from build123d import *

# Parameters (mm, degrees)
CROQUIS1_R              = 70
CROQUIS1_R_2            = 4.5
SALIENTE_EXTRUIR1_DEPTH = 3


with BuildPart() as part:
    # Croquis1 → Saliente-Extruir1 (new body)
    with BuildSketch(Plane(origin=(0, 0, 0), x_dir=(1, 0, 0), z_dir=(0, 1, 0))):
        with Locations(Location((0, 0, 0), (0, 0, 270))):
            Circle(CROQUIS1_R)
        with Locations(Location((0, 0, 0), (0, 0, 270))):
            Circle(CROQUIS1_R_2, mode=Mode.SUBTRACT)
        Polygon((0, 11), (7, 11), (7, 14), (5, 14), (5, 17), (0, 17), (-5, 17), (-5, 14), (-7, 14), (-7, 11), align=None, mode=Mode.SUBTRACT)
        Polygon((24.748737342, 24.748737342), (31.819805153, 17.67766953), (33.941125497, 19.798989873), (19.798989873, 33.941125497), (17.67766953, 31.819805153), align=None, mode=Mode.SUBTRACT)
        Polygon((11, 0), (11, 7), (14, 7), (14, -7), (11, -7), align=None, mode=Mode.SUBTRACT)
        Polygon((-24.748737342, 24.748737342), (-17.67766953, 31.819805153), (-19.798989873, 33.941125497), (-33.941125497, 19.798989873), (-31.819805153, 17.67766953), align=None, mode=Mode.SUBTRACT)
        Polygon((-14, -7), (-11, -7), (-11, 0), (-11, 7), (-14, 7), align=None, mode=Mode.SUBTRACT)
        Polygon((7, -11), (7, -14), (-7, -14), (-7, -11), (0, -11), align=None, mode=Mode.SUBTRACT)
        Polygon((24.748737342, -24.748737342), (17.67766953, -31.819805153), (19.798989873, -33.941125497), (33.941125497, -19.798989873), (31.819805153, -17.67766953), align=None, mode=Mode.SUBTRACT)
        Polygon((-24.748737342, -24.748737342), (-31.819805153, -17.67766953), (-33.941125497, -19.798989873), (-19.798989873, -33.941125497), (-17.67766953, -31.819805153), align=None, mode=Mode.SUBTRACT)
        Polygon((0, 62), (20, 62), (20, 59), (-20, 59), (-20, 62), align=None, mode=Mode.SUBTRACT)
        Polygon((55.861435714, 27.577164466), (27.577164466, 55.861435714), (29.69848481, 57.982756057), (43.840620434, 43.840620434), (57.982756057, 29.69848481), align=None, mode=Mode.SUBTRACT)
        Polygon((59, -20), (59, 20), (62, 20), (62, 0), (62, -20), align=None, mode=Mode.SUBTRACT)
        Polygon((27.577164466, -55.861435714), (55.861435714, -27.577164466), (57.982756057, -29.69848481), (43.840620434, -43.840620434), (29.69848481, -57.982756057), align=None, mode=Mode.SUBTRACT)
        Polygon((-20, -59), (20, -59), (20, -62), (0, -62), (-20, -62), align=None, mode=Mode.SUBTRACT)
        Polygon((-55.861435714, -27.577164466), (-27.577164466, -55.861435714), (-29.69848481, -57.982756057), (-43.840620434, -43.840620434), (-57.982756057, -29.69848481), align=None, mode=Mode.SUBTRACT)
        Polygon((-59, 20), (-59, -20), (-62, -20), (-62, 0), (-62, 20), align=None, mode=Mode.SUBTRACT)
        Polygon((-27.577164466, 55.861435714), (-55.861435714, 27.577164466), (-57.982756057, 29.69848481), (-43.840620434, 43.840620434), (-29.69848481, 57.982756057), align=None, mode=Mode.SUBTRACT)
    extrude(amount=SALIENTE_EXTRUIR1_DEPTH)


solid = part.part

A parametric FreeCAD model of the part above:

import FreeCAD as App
import Part
import Sketcher
from FreeCAD import Vector

doc = App.newDocument("Part")
body = doc.addObject("PartDesign::Body", "Body")

sketch1 = body.newObject("Sketcher::SketchObject", "Sketch")
sketch1.AttachmentSupport = (doc.getObject("XZ_Plane"), [""])
sketch1.MapMode = "FlatFace"
sketch1.addGeometry([
    Part.Circle(Vector(0, 0, 0), Vector(0, 0, 1), 70),
    Part.LineSegment(Vector(-29.7, -58, 0), Vector(-27.6, -55.9, 0)),
    Part.LineSegment(Vector(-27.6, -55.9, 0), Vector(-55.9, -27.6, 0)),
    Part.LineSegment(Vector(-55.9, -27.6, 0), Vector(-58, -29.7, 0)),
    Part.LineSegment(Vector(-58, -29.7, 0), Vector(-43.8, -43.8, 0)),
    Part.LineSegment(Vector(-43.8, -43.8, 0), Vector(-29.7, -58, 0)),
    Part.LineSegment(Vector(-17.7, -31.8, 0), Vector(-24.7, -24.7, 0)),
    Part.LineSegment(Vector(-24.7, -24.7, 0), Vector(-31.8, -17.7, 0)),
    Part.LineSegment(Vector(-31.8, -17.7, 0), Vector(-33.9, -19.8, 0)),
    Part.LineSegment(Vector(-33.9, -19.8, 0), Vector(-19.8, -33.9, 0)),
    Part.LineSegment(Vector(-19.8, -33.9, 0), Vector(-17.7, -31.8, 0)),
    Part.LineSegment(Vector(-62, -20, 0), Vector(-59, -20, 0)),
    Part.LineSegment(Vector(-59, -20, 0), Vector(-59, 20, 0)),
    Part.LineSegment(Vector(-59, 20, 0), Vector(-62, 20, 0)),
    Part.LineSegment(Vector(-62, 20, 0), Vector(-62, -20, 0)),
    Part.LineSegment(Vector(-58, 29.7, 0), Vector(-55.9, 27.6, 0)),
    Part.LineSegment(Vector(-55.9, 27.6, 0), Vector(-27.6, 55.9, 0)),
    Part.LineSegment(Vector(-27.6, 55.9, 0), Vector(-29.7, 58, 0)),
    Part.LineSegment(Vector(-29.7, 58, 0), Vector(-43.8, 43.8, 0)),
    Part.LineSegment(Vector(-43.8, 43.8, 0), Vector(-58, 29.7, 0)),
    Part.LineSegment(Vector(-31.8, 17.7, 0), Vector(-24.7, 24.7, 0)),
    Part.LineSegment(Vector(-24.7, 24.7, 0), Vector(-17.7, 31.8, 0)),
    Part.LineSegment(Vector(-17.7, 31.8, 0), Vector(-19.8, 33.9, 0)),
    Part.LineSegment(Vector(-19.8, 33.9, 0), Vector(-33.9, 19.8, 0)),
    Part.LineSegment(Vector(-33.9, 19.8, 0), Vector(-31.8, 17.7, 0)),
    Part.LineSegment(Vector(-11, 7, 0), Vector(-14, 7, 0)),
    Part.LineSegment(Vector(-14, 7, 0), Vector(-14, -7, 0)),
    Part.LineSegment(Vector(-14, -7, 0), Vector(-11, -7, 0)),
    Part.LineSegment(Vector(-11, -7, 0), Vector(-11, 7, 0)),
    Part.LineSegment(Vector(-20, -62, 0), Vector(20, -62, 0)),
    Part.LineSegment(Vector(20, -62, 0), Vector(20, -59, 0)),
    Part.LineSegment(Vector(20, -59, 0), Vector(-20, -59, 0)),
    Part.LineSegment(Vector(-20, -59, 0), Vector(-20, -62, 0)),
    Part.LineSegment(Vector(7, -11, 0), Vector(-7, -11, 0)),
    Part.LineSegment(Vector(-7, -11, 0), Vector(-7, -14, 0)),
    Part.LineSegment(Vector(-7, -14, 0), Vector(-5, -14, 0)),
    Part.LineSegment(Vector(-5, -14, 0), Vector(-5, -17, 0)),
    Part.LineSegment(Vector(-5, -17, 0), Vector(5, -17, 0)),
    Part.LineSegment(Vector(5, -17, 0), Vector(5, -14, 0)),
    Part.LineSegment(Vector(5, -14, 0), Vector(7, -14, 0)),
    Part.LineSegment(Vector(7, -14, 0), Vector(7, -11, 0)),
    Part.LineSegment(Vector(31.8, -17.7, 0), Vector(24.7, -24.7, 0)),
    Part.LineSegment(Vector(24.7, -24.7, 0), Vector(17.7, -31.8, 0)),
    Part.LineSegment(Vector(17.7, -31.8, 0), Vector(19.8, -33.9, 0)),
    Part.LineSegment(Vector(19.8, -33.9, 0), Vector(33.9, -19.8, 0)),
    Part.LineSegment(Vector(33.9, -19.8, 0), Vector(31.8, -17.7, 0)),
    Part.LineSegment(Vector(58, -29.7, 0), Vector(55.9, -27.6, 0)),
    Part.LineSegment(Vector(55.9, -27.6, 0), Vector(27.6, -55.9, 0)),
    Part.LineSegment(Vector(27.6, -55.9, 0), Vector(29.7, -58, 0)),
    Part.LineSegment(Vector(29.7, -58, 0), Vector(43.8, -43.8, 0)),
    Part.LineSegment(Vector(43.8, -43.8, 0), Vector(58, -29.7, 0)),
    Part.Circle(Vector(0, 0, 0), Vector(0, 0, 1), 4.5),
    Part.LineSegment(Vector(-7, 11, 0), Vector(7, 11, 0)),
    Part.LineSegment(Vector(7, 11, 0), Vector(7, 14, 0)),
    Part.LineSegment(Vector(7, 14, 0), Vector(-7, 14, 0)),
    Part.LineSegment(Vector(-7, 14, 0), Vector(-7, 11, 0)),
    Part.LineSegment(Vector(11, 7, 0), Vector(11, -7, 0)),
    Part.LineSegment(Vector(11, -7, 0), Vector(14, -7, 0)),
    Part.LineSegment(Vector(14, -7, 0), Vector(14, 7, 0)),
    Part.LineSegment(Vector(14, 7, 0), Vector(11, 7, 0)),
    Part.LineSegment(Vector(17.7, 31.8, 0), Vector(24.7, 24.7, 0)),
    Part.LineSegment(Vector(24.7, 24.7, 0), Vector(31.8, 17.7, 0)),
    Part.LineSegment(Vector(31.8, 17.7, 0), Vector(33.9, 19.8, 0)),
    Part.LineSegment(Vector(33.9, 19.8, 0), Vector(19.8, 33.9, 0)),
    Part.LineSegment(Vector(19.8, 33.9, 0), Vector(17.7, 31.8, 0)),
    Part.LineSegment(Vector(-20, 62, 0), Vector(-20, 59, 0)),
    Part.LineSegment(Vector(-20, 59, 0), Vector(20, 59, 0)),
    Part.LineSegment(Vector(20, 59, 0), Vector(20, 62, 0)),
    Part.LineSegment(Vector(20, 62, 0), Vector(-20, 62, 0)),
    Part.LineSegment(Vector(62, 20, 0), Vector(59, 20, 0)),
    Part.LineSegment(Vector(59, 20, 0), Vector(59, -20, 0)),
    Part.LineSegment(Vector(59, -20, 0), Vector(62, -20, 0)),
    Part.LineSegment(Vector(62, -20, 0), Vector(62, 20, 0)),
    Part.LineSegment(Vector(29.7, 58, 0), Vector(27.6, 55.9, 0)),
    Part.LineSegment(Vector(27.6, 55.9, 0), Vector(55.9, 27.6, 0)),
    Part.LineSegment(Vector(55.9, 27.6, 0), Vector(58, 29.7, 0)),
    Part.LineSegment(Vector(58, 29.7, 0), Vector(43.8, 43.8, 0)),
    Part.LineSegment(Vector(43.8, 43.8, 0), Vector(29.7, 58, 0)),
], False)
sketch1.addConstraint([
    Sketcher.Constraint("Coincident", 1, 2, 2, 1),
    Sketcher.Constraint("Coincident", 2, 2, 3, 1),
    Sketcher.Constraint("Coincident", 3, 2, 4, 1),
    Sketcher.Constraint("Coincident", 4, 2, 5, 1),
    Sketcher.Constraint("Coincident", 5, 2, 1, 1),
    Sketcher.Constraint("Coincident", 6, 2, 7, 1),
    Sketcher.Constraint("Coincident", 7, 2, 8, 1),
    Sketcher.Constraint("Coincident", 8, 2, 9, 1),
    Sketcher.Constraint("Coincident", 9, 2, 10, 1),
    Sketcher.Constraint("Coincident", 10, 2, 6, 1),
    Sketcher.Constraint("Coincident", 11, 2, 12, 1),
    Sketcher.Constraint("Coincident", 12, 2, 13, 1),
    Sketcher.Constraint("Coincident", 13, 2, 14, 1),
    Sketcher.Constraint("Coincident", 14, 2, 11, 1),
    Sketcher.Constraint("Coincident", 15, 2, 16, 1),
    Sketcher.Constraint("Coincident", 16, 2, 17, 1),
    Sketcher.Constraint("Coincident", 17, 2, 18, 1),
    Sketcher.Constraint("Coincident", 18, 2, 19, 1),
    Sketcher.Constraint("Coincident", 19, 2, 15, 1),
    Sketcher.Constraint("Coincident", 20, 2, 21, 1),
    Sketcher.Constraint("Coincident", 21, 2, 22, 1),
    Sketcher.Constraint("Coincident", 22, 2, 23, 1),
    Sketcher.Constraint("Coincident", 23, 2, 24, 1),
    Sketcher.Constraint("Coincident", 24, 2, 20, 1),
    Sketcher.Constraint("Coincident", 25, 2, 26, 1),
    Sketcher.Constraint("Coincident", 26, 2, 27, 1),
    Sketcher.Constraint("Coincident", 27, 2, 28, 1),
    Sketcher.Constraint("Coincident", 28, 2, 25, 1),
    Sketcher.Constraint("Coincident", 29, 2, 30, 1),
    Sketcher.Constraint("Coincident", 30, 2, 31, 1),
    Sketcher.Constraint("Coincident", 31, 2, 32, 1),
    Sketcher.Constraint("Coincident", 32, 2, 29, 1),
    Sketcher.Constraint("Coincident", 33, 2, 34, 1),
    Sketcher.Constraint("Coincident", 34, 2, 35, 1),
    Sketcher.Constraint("Coincident", 35, 2, 36, 1),
    Sketcher.Constraint("Coincident", 36, 2, 37, 1),
    Sketcher.Constraint("Coincident", 37, 2, 38, 1),
    Sketcher.Constraint("Coincident", 38, 2, 39, 1),
    Sketcher.Constraint("Coincident", 39, 2, 40, 1),
    Sketcher.Constraint("Coincident", 40, 2, 33, 1),
    Sketcher.Constraint("Coincident", 41, 2, 42, 1),
    Sketcher.Constraint("Coincident", 42, 2, 43, 1),
    Sketcher.Constraint("Coincident", 43, 2, 44, 1),
    Sketcher.Constraint("Coincident", 44, 2, 45, 1),
    Sketcher.Constraint("Coincident", 45, 2, 41, 1),
    Sketcher.Constraint("Coincident", 46, 2, 47, 1),
    Sketcher.Constraint("Coincident", 47, 2, 48, 1),
    Sketcher.Constraint("Coincident", 48, 2, 49, 1),
    Sketcher.Constraint("Coincident", 49, 2, 50, 1),
    Sketcher.Constraint("Coincident", 50, 2, 46, 1),
    Sketcher.Constraint("Coincident", 52, 2, 53, 1),
    Sketcher.Constraint("Coincident", 53, 2, 54, 1),
    Sketcher.Constraint("Coincident", 54, 2, 55, 1),
    Sketcher.Constraint("Coincident", 55, 2, 52, 1),
    Sketcher.Constraint("Coincident", 56, 2, 57, 1),
    Sketcher.Constraint("Coincident", 57, 2, 58, 1),
    Sketcher.Constraint("Coincident", 58, 2, 59, 1),
    Sketcher.Constraint("Coincident", 59, 2, 56, 1),
    Sketcher.Constraint("Coincident", 60, 2, 61, 1),
    Sketcher.Constraint("Coincident", 61, 2, 62, 1),
    Sketcher.Constraint("Coincident", 62, 2, 63, 1),
    Sketcher.Constraint("Coincident", 63, 2, 64, 1),
    Sketcher.Constraint("Coincident", 64, 2, 60, 1),
    Sketcher.Constraint("Coincident", 65, 2, 66, 1),
    Sketcher.Constraint("Coincident", 66, 2, 67, 1),
    Sketcher.Constraint("Coincident", 67, 2, 68, 1),
    Sketcher.Constraint("Coincident", 68, 2, 65, 1),
    Sketcher.Constraint("Coincident", 69, 2, 70, 1),
    Sketcher.Constraint("Coincident", 70, 2, 71, 1),
    Sketcher.Constraint("Coincident", 71, 2, 72, 1),
    Sketcher.Constraint("Coincident", 72, 2, 69, 1),
    Sketcher.Constraint("Coincident", 73, 2, 74, 1),
    Sketcher.Constraint("Coincident", 74, 2, 75, 1),
    Sketcher.Constraint("Coincident", 75, 2, 76, 1),
    Sketcher.Constraint("Coincident", 76, 2, 77, 1),
    Sketcher.Constraint("Coincident", 77, 2, 73, 1),
    Sketcher.Constraint("Horizontal", 11),
    Sketcher.Constraint("Vertical", 12),
    Sketcher.Constraint("Horizontal", 13),
    Sketcher.Constraint("Vertical", 14),
    Sketcher.Constraint("Horizontal", 25),
    Sketcher.Constraint("Vertical", 26),
    Sketcher.Constraint("Horizontal", 27),
    Sketcher.Constraint("Vertical", 28),
    Sketcher.Constraint("Horizontal", 29),
    Sketcher.Constraint("Vertical", 30),
    Sketcher.Constraint("Horizontal", 31),
    Sketcher.Constraint("Vertical", 32),
    Sketcher.Constraint("Horizontal", 33),
    Sketcher.Constraint("Vertical", 34),
    Sketcher.Constraint("Horizontal", 35),
    Sketcher.Constraint("Vertical", 36),
    Sketcher.Constraint("Horizontal", 37),
    Sketcher.Constraint("Vertical", 38),
    Sketcher.Constraint("Horizontal", 39),
    Sketcher.Constraint("Vertical", 40),
    Sketcher.Constraint("Horizontal", 52),
    Sketcher.Constraint("Vertical", 53),
    Sketcher.Constraint("Horizontal", 54),
    Sketcher.Constraint("Vertical", 55),
    Sketcher.Constraint("Vertical", 56),
    Sketcher.Constraint("Horizontal", 57),
    Sketcher.Constraint("Vertical", 58),
    Sketcher.Constraint("Horizontal", 59),
    Sketcher.Constraint("Vertical", 65),
    Sketcher.Constraint("Horizontal", 66),
    Sketcher.Constraint("Vertical", 67),
    Sketcher.Constraint("Horizontal", 68),
    Sketcher.Constraint("Horizontal", 69),
    Sketcher.Constraint("Vertical", 70),
    Sketcher.Constraint("Horizontal", 71),
    Sketcher.Constraint("Vertical", 72),
    Sketcher.Constraint("Coincident", 0, 3, -1, 1),
    Sketcher.Constraint("Coincident", 51, 3, -1, 1),
    Sketcher.Constraint("Symmetric", 20, 2, 41, 2, -1, 1),
    Sketcher.Constraint("Symmetric", 21, 2, 42, 2, -1, 1),
    Sketcher.Constraint("Symmetric", 22, 2, 43, 2, -1, 1),
    Sketcher.Constraint("Symmetric", 23, 2, 44, 2, -1, 1),
    Sketcher.Constraint("Symmetric", 24, 2, 45, 2, -1, 1),
    Sketcher.Constraint("Symmetric", 15, 2, 46, 2, -1, 1),
    Sketcher.Constraint("Symmetric", 16, 2, 47, 2, -1, 1),
    Sketcher.Constraint("Symmetric", 17, 2, 48, 2, -1, 1),
    Sketcher.Constraint("Symmetric", 18, 2, 49, 2, -1, 1),
    Sketcher.Constraint("Symmetric", 19, 2, 50, 2, -1, 1),
    Sketcher.Constraint("Symmetric", 33, 2, 52, 2, -1, 1),
    Sketcher.Constraint("Symmetric", 39, 2, 54, 2, -1, 1),
    Sketcher.Constraint("Symmetric", 28, 2, 56, 2, -1, 1),
    Sketcher.Constraint("Symmetric", 26, 2, 58, 2, -1, 1),
    Sketcher.Constraint("Symmetric", 6, 2, 60, 2, -1, 1),
    Sketcher.Constraint("Symmetric", 7, 2, 61, 2, -1, 1),
    Sketcher.Constraint("Symmetric", 8, 2, 62, 2, -1, 1),
    Sketcher.Constraint("Symmetric", 9, 2, 63, 2, -1, 1),
    Sketcher.Constraint("Symmetric", 10, 2, 64, 2, -1, 1),
    Sketcher.Constraint("Symmetric", 30, 2, 65, 2, -1, 1),
    Sketcher.Constraint("Symmetric", 32, 2, 67, 2, -1, 1),
    Sketcher.Constraint("Symmetric", 11, 2, 69, 2, -1, 1),
    Sketcher.Constraint("Symmetric", 13, 2, 71, 2, -1, 1),
    Sketcher.Constraint("Symmetric", 1, 2, 73, 2, -1, 1),
    Sketcher.Constraint("Symmetric", 2, 2, 74, 2, -1, 1),
    Sketcher.Constraint("Symmetric", 3, 2, 75, 2, -1, 1),
    Sketcher.Constraint("Symmetric", 4, 2, 76, 2, -1, 1),
    Sketcher.Constraint("Symmetric", 5, 2, 77, 2, -1, 1),
    Sketcher.Constraint("Symmetric", 35, 2, 38, 2, -2),
    Sketcher.Constraint("Symmetric", 6, 2, 41, 2, -2),
    Sketcher.Constraint("Symmetric", 10, 2, 42, 2, -2),
    Sketcher.Constraint("Symmetric", 9, 2, 43, 2, -2),
    Sketcher.Constraint("Symmetric", 8, 2, 44, 2, -2),
    Sketcher.Constraint("Symmetric", 7, 2, 45, 2, -2),
    Sketcher.Constraint("Symmetric", 2, 2, 46, 2, -2),
    Sketcher.Constraint("Symmetric", 1, 2, 47, 2, -2),
    Sketcher.Constraint("Symmetric", 5, 2, 48, 2, -2),
    Sketcher.Constraint("Symmetric", 4, 2, 49, 2, -2),
    Sketcher.Constraint("Symmetric", 3, 2, 50, 2, -2),
    Sketcher.Constraint("Perpendicular", 1, 2),
    Sketcher.Constraint("Perpendicular", 2, 3),
    Sketcher.Constraint("Perpendicular", 3, 4),
    Sketcher.Constraint("Parallel", 4, 5),
    Sketcher.Constraint("Parallel", 5, 6),
    Sketcher.Constraint("Parallel", 6, 7),
    Sketcher.Constraint("Perpendicular", 7, 8),
    Sketcher.Constraint("Perpendicular", 8, 9),
    Sketcher.Constraint("Perpendicular", 9, 10),
    Sketcher.Constraint("Perpendicular", 10, 15),
    Sketcher.Constraint("Horizontal", 27, 2, 56, 2),
    Sketcher.Constraint("Horizontal", 13, 2, 69, 2),
    Sketcher.Constraint("Vertical", 40, 2, 52, 2),
    Sketcher.Constraint("Vertical", 32, 2, 65, 2),
    Sketcher.Constraint("Equal", 13, 25),
    Sketcher.Constraint("Equal", 68, 12),
    Sketcher.Constraint("Equal", 54, 26),
    Sketcher.Constraint("Equal", 71, 30),
    Sketcher.Constraint("Equal", 32, 34),
    Sketcher.Constraint("Equal", 34, 36),
    Sketcher.Constraint("Equal", 4, 5),
    Sketcher.Constraint("Equal", 6, 7),
    Sketcher.Constraint("Equal", 3, 8),
    Sketcher.Constraint("Equal", 5, 9),
    Sketcher.Constraint("Diameter", 0, 140.0),
    Sketcher.Constraint("Diameter", 51, 9.0),
    Sketcher.Constraint("DistanceX", 11, 1, 11, 2, 3.0),
    Sketcher.Constraint("DistanceX", 29, 1, 29, 2, 40.0),
    Sketcher.Constraint("DistanceX", 33, 2, 33, 1, 14.0),
    Sketcher.Constraint("DistanceX", 35, 1, 35, 2, 2.0),
    Sketcher.Constraint("Distance", 1, 3.0),
    Sketcher.Constraint("Distance", 2, 40.0),
    Sketcher.Constraint("DistanceX", 11, 2, -1, 1, 59.0),
    Sketcher.Constraint("DistanceX", 25, 2, -1, 1, 14.0),
    Sketcher.Constraint("DistanceY", 29, 2, -1, 1, 62.0),
    Sketcher.Constraint("DistanceY", 33, 2, -1, 1, 11.0),
    Sketcher.Constraint("DistanceX", 4, 2, -1, 1, 43.84062),
    Sketcher.Constraint("DistanceY", 4, 2, -1, 1, 43.84062),
    Sketcher.Constraint("DistanceY", 7, 2, -1, 1, 17.67767),
    Sketcher.Constraint("DistanceX", 9, 2, -1, 1, 19.79899),
])
pad1 = body.newObject("PartDesign::Pad", "Pad")
pad1.Profile = sketch1
pad1.Length = 3
pad1.Reversed = True

doc.recompute()
